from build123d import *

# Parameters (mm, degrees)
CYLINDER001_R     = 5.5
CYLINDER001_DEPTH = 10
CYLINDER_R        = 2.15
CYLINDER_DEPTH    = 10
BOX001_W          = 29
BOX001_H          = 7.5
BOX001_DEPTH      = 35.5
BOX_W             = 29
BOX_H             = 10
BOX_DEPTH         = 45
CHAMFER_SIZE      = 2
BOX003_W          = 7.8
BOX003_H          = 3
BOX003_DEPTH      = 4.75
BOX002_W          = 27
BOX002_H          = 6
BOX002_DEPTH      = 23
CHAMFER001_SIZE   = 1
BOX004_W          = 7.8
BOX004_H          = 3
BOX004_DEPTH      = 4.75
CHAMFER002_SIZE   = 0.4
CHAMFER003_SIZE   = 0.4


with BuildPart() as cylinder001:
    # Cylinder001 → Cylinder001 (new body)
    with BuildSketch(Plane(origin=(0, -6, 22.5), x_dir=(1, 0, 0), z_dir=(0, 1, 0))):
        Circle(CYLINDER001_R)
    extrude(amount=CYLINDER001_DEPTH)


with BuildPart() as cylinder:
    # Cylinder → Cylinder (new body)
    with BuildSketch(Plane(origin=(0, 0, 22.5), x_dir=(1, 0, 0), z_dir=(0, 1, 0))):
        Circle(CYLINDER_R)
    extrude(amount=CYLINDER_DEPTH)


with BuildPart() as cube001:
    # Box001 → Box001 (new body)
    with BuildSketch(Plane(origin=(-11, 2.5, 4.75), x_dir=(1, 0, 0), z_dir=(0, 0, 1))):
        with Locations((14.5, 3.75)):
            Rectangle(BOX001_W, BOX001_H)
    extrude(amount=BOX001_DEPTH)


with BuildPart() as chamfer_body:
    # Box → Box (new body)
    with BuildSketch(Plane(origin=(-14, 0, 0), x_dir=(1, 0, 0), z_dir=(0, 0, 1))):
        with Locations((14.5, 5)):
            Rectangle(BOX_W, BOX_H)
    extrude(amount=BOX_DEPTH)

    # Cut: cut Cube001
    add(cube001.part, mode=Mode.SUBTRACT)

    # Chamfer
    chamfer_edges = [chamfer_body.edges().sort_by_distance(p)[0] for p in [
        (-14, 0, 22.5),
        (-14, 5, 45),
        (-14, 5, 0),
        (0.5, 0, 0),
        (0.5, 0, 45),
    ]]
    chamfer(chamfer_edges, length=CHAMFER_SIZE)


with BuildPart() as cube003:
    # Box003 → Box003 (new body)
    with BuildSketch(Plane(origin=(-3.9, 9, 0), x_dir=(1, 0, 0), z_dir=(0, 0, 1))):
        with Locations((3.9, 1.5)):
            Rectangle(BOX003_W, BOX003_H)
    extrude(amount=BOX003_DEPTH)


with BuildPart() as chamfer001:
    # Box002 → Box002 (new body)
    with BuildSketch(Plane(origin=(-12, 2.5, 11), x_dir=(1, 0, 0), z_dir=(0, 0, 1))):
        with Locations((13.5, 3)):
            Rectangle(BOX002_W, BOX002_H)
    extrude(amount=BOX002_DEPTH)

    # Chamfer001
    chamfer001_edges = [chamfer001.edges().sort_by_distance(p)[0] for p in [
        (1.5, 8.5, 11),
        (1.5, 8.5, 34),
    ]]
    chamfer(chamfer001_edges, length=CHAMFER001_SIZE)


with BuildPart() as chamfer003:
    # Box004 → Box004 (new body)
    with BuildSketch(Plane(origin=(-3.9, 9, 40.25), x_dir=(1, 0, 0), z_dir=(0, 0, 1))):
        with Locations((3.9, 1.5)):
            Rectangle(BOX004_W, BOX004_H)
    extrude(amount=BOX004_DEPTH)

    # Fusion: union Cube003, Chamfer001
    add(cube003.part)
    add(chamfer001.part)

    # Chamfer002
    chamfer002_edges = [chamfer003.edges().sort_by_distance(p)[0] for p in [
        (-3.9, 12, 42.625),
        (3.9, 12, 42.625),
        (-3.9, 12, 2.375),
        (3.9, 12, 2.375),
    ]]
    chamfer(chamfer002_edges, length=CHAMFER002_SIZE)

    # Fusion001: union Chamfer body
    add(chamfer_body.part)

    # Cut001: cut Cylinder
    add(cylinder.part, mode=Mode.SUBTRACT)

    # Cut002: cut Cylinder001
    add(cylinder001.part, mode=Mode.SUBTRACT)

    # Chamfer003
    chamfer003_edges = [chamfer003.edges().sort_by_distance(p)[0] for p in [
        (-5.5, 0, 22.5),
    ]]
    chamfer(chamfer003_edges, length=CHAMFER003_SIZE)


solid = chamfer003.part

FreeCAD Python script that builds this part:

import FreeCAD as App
import Part
import Sketcher

V = App.Vector
Q = App.Units.Quantity


def edges_at(feature, points):
    """Names of the edges that pass closest to the given points."""
    edges = feature.Shape.Edges
    near = lambda p: min(range(len(edges)), key=lambda i: edges[i].distToShape(Part.Vertex(*p))[0])
    return sorted({f"Edge{near(p) + 1}" for p in points})

doc = App.newDocument("Part")
params = doc.addObject("Spreadsheet::Sheet", "Params")
for row, (alias, value) in enumerate([
    ("sketch1_diameter", "11 mm"),
    ("pad1_length", "10 mm"),
    ("sketch2_diameter", "4.3 mm"),
    ("pad2_length", "10 mm"),
    ("sketch3_width", "29 mm"),
    ("sketch3_height", "7.5 mm"),
    ("pad3_length", "35.5 mm"),
    ("sketch4_width", "29 mm"),
    ("sketch4_height", "10 mm"),
    ("pad4_length", "45 mm"),
    ("chamfer_size", "2 mm"),
    ("sketch5_height", "3 mm"),
    ("sketch5_width", "7.8 mm"),
    ("pad5_length", "4.75 mm"),
    ("sketch6_width", "27 mm"),
    ("sketch6_height", "6 mm"),
    ("pad6_length", "23 mm"),
    ("chamfer2_size", "1 mm"),
    ("sketch7_height", "3 mm"),
    ("sketch7_width", "7.8 mm"),
    ("pad7_length", "4.75 mm"),
    ("chamfer3_size", "0.4 mm"),
    ("chamfer4_size", "0.4 mm"),
], start=1):
    params.set(f"A{row}", alias)
    params.set(f"B{row}", "=" + value)
    params.setAlias(f"B{row}", alias)

body = doc.addObject("PartDesign::Body", "Body")

# Sketch on XZ plane
sketch1 = body.newObject("Sketcher::SketchObject", "Sketch")
sketch1.AttachmentSupport = (doc.getObject("XZ_Plane"), [""])
sketch1.MapMode = "FlatFace"
sketch1.AttachmentOffset = App.Placement(V(0, 0, 6), App.Rotation())
sketch1.addGeometry(Part.Circle(V(0, 22.5, 0), V(0, 0, 1), 5.5), False)
sketch1.addConstraint(Sketcher.Constraint("PointOnObject", 0, 3, -2))
sketch1.addConstraint(Sketcher.Constraint("Diameter", 0, Q("11 mm")))
sketch1.addConstraint(Sketcher.Constraint("DistanceY", -1, 1, 0, 3, Q("22.5 mm")))
sketch1.setExpression("Constraints[1]", "Params.sketch1_diameter")
pad1 = body.newObject("PartDesign::Pad", "Pad")
pad1.Profile = sketch1
pad1.setExpression("Length", "Params.pad1_length")
pad1.Reversed = True
body2 = doc.addObject("PartDesign::Body", "Body001")

# Sketch on XZ plane
sketch2 = body2.newObject("Sketcher::SketchObject", "Sketch001")
sketch2.AttachmentSupport = (doc.getObject("XZ_Plane001"), [""])
sketch2.MapMode = "FlatFace"
sketch2.addGeometry(Part.Circle(V(0, 22.5, 0), V(0, 0, 1), 2.15), False)
sketch2.addConstraint(Sketcher.Constraint("PointOnObject", 0, 3, -2))
sketch2.addConstraint(Sketcher.Constraint("Diameter", 0, Q("4.3 mm")))
sketch2.addConstraint(Sketcher.Constraint("DistanceY", -1, 1, 0, 3, Q("22.5 mm")))
sketch2.setExpression("Constraints[1]", "Params.sketch2_diameter")
pad2 = body2.newObject("PartDesign::Pad", "Pad001")
pad2.Profile = sketch2
pad2.setExpression("Length", "Params.pad2_length")
pad2.Reversed = True
body3 = doc.addObject("PartDesign::Body", "Body002")

# Sketch on XY plane
sketch3 = body3.newObject("Sketcher::SketchObject", "Sketch002")
sketch3.AttachmentSupport = (doc.getObject("XY_Plane002"), [""])
sketch3.MapMode = "FlatFace"
sketch3.AttachmentOffset = App.Placement(V(0, 0, 4.75), App.Rotation())
sketch3.addGeometry(Part.LineSegment(V(-11, 10, 0), V(-11, 2.5, 0)), False)
sketch3.addGeometry(Part.LineSegment(V(-11, 2.5, 0), V(18, 2.5, 0)), False)
sketch3.addGeometry(Part.LineSegment(V(18, 2.5, 0), V(18, 10, 0)), False)
sketch3.addGeometry(Part.LineSegment(V(18, 10, 0), V(-11, 10, 0)), False)
sketch3.addConstraint(Sketcher.Constraint("Coincident", 0, 2, 1, 1))
sketch3.addConstraint(Sketcher.Constraint("Coincident", 1, 2, 2, 1))
sketch3.addConstraint(Sketcher.Constraint("Coincident", 2, 2, 3, 1))
sketch3.addConstraint(Sketcher.Constraint("Coincident", 3, 2, 0, 1))
sketch3.addConstraint(Sketcher.Constraint("Vertical", 0))
sketch3.addConstraint(Sketcher.Constraint("Horizontal", 1))
sketch3.addConstraint(Sketcher.Constraint("Vertical", 2))
sketch3.addConstraint(Sketcher.Constraint("Horizontal", 3))
sketch3.addConstraint(Sketcher.Constraint("DistanceX", 1, 1, 1, 2, Q("29 mm")))
sketch3.addConstraint(Sketcher.Constraint("DistanceY", 0, 2, 0, 1, Q("7.5 mm")))
sketch3.addConstraint(Sketcher.Constraint("DistanceX", 0, 2, -1, 1, Q("11 mm")))
sketch3.addConstraint(Sketcher.Constraint("DistanceY", -1, 1, 2, 2, Q("10 mm")))
sketch3.setExpression("Constraints[8]", "Params.sketch3_width")
sketch3.setExpression("Constraints[9]", "Params.sketch3_height")
pad3 = body3.newObject("PartDesign::Pad", "Pad002")
pad3.Profile = sketch3
pad3.setExpression("Length", "Params.pad3_length")
body4 = doc.addObject("PartDesign::Body", "Body003")

# Sketch on XY plane
sketch4 = body4.newObject("Sketcher::SketchObject", "Sketch003")
sketch4.AttachmentSupport = (doc.getObject("XY_Plane003"), [""])
sketch4.MapMode = "FlatFace"
sketch4.addGeometry(Part.LineSegment(V(-14, 10, 0), V(-14, 0, 0)), False)
sketch4.addGeometry(Part.LineSegment(V(-14, 0, 0), V(15, 0, 0)), False)
sketch4.addGeometry(Part.LineSegment(V(15, 0, 0), V(15, 10, 0)), False)
sketch4.addGeometry(Part.LineSegment(V(15, 10, 0), V(-14, 10, 0)), False)
sketch4.addConstraint(Sketcher.Constraint("Coincident", 0, 2, 1, 1))
sketch4.addConstraint(Sketcher.Constraint("Coincident", 1, 2, 2, 1))
sketch4.addConstraint(Sketcher.Constraint("Coincident", 2, 2, 3, 1))
sketch4.addConstraint(Sketcher.Constraint("Coincident", 3, 2, 0, 1))
sketch4.addConstraint(Sketcher.Constraint("Vertical", 0))
sketch4.addConstraint(Sketcher.Constraint("Horizontal", 1))
sketch4.addConstraint(Sketcher.Constraint("Vertical", 2))
sketch4.addConstraint(Sketcher.Constraint("Horizontal", 3))
sketch4.addConstraint(Sketcher.Constraint("PointOnObject", 0, 2, -1))
sketch4.addConstraint(Sketcher.Constraint("DistanceX", 1, 1, 1, 2, Q("29 mm")))
sketch4.addConstraint(Sketcher.Constraint("DistanceY", 0, 2, 0, 1, Q("10 mm")))
sketch4.addConstraint(Sketcher.Constraint("DistanceX", 0, 2, -1, 1, Q("14 mm")))
sketch4.setExpression("Constraints[9]", "Params.sketch4_width")
sketch4.setExpression("Constraints[10]", "Params.sketch4_height")
pad4 = body4.newObject("PartDesign::Pad", "Pad003")
pad4.Profile = sketch4
pad4.setExpression("Length", "Params.pad4_length")
doc.recompute()

boolean = body4.newObject("PartDesign::Boolean", "Boolean")
boolean.Type = "Cut"
boolean.addObjects([body3])
doc.recompute()

chamfer = body4.newObject("PartDesign::Chamfer", "Chamfer")
chamfer.Base = (boolean, edges_at(boolean, [
    (-14, 0, 22.5),
    (-14, 5, 45),
    (-14, 5, 0),
    (0.5, 0, 0),
    (0.5, 0, 45),
]))
chamfer.setExpression("Size", "Params.chamfer_size")
body5 = doc.addObject("PartDesign::Body", "Body004")

# Sketch on XY plane
sketch5 = body5.newObject("Sketcher::SketchObject", "Sketch004")
sketch5.AttachmentSupport = (doc.getObject("XY_Plane004"), [""])
sketch5.MapMode = "FlatFace"
sketch5.addGeometry(Part.LineSegment(V(-3.9, 12, 0), V(-3.9, 9, 0)), False)
sketch5.addGeometry(Part.LineSegment(V(-3.9, 9, 0), V(3.9, 9, 0)), False)
sketch5.addGeometry(Part.LineSegment(V(3.9, 9, 0), V(3.9, 12, 0)), False)
sketch5.addGeometry(Part.LineSegment(V(3.9, 12, 0), V(-3.9, 12, 0)), False)
sketch5.addConstraint(Sketcher.Constraint("Coincident", 0, 2, 1, 1))
sketch5.addConstraint(Sketcher.Constraint("Coincident", 1, 2, 2, 1))
sketch5.addConstraint(Sketcher.Constraint("Coincident", 2, 2, 3, 1))
sketch5.addConstraint(Sketcher.Constraint("Coincident", 3, 2, 0, 1))
sketch5.addConstraint(Sketcher.Constraint("Vertical", 0))
sketch5.addConstraint(Sketcher.Constraint("Horizontal", 1))
sketch5.addConstraint(Sketcher.Constraint("Vertical", 2))
sketch5.addConstraint(Sketcher.Constraint("Horizontal", 3))
sketch5.addConstraint(Sketcher.Constraint("DistanceY", 0, 2, 0, 1, Q("3 mm")))
sketch5.addConstraint(Sketcher.Constraint("DistanceX", 1, 1, 1, 2, Q("7.8 mm")))
sketch5.addConstraint(Sketcher.Constraint("DistanceY", -1, 1, 0, 2, Q("9 mm")))
sketch5.addConstraint(Sketcher.Constraint("DistanceX", 0, 2, -1, 1, Q("3.9 mm")))
sketch5.setExpression("Constraints[8]", "Params.sketch5_height")
sketch5.setExpression("Constraints[9]", "Params.sketch5_width")
pad5 = body5.newObject("PartDesign::Pad", "Pad004")
pad5.Profile = sketch5
pad5.setExpression("Length", "Params.pad5_length")
body6 = doc.addObject("PartDesign::Body", "Body005")

# Sketch on XY plane
sketch6 = body6.newObject("Sketcher::SketchObject", "Sketch005")
sketch6.AttachmentSupport = (doc.getObject("XY_Plane005"), [""])
sketch6.MapMode = "FlatFace"
sketch6.AttachmentOffset = App.Placement(V(0, 0, 11), App.Rotation())
sketch6.addGeometry(Part.LineSegment(V(-12, 8.5, 0), V(-12, 2.5, 0)), False)
sketch6.addGeometry(Part.LineSegment(V(-12, 2.5, 0), V(15, 2.5, 0)), False)
sketch6.addGeometry(Part.LineSegment(V(15, 2.5, 0), V(15, 8.5, 0)), False)
sketch6.addGeometry(Part.LineSegment(V(15, 8.5, 0), V(-12, 8.5, 0)), False)
sketch6.addConstraint(Sketcher.Constraint("Coincident", 0, 2, 1, 1))
sketch6.addConstraint(Sketcher.Constraint("Coincident", 1, 2, 2, 1))
sketch6.addConstraint(Sketcher.Constraint("Coincident", 2, 2, 3, 1))
sketch6.addConstraint(Sketcher.Constraint("Coincident", 3, 2, 0, 1))
sketch6.addConstraint(Sketcher.Constraint("Vertical", 0))
sketch6.addConstraint(Sketcher.Constraint("Horizontal", 1))
sketch6.addConstraint(Sketcher.Constraint("Vertical", 2))
sketch6.addConstraint(Sketcher.Constraint("Horizontal", 3))
sketch6.addConstraint(Sketcher.Constraint("DistanceX", 1, 1, 1, 2, Q("27 mm")))
sketch6.addConstraint(Sketcher.Constraint("DistanceY", 0, 2, 0, 1, Q("6 mm")))
sketch6.addConstraint(Sketcher.Constraint("DistanceX", 0, 2, -1, 1, Q("12 mm")))
sketch6.addConstraint(Sketcher.Constraint("DistanceY", -1, 1, 0, 2, Q("2.5 mm")))
sketch6.setExpression("Constraints[8]", "Params.sketch6_width")
sketch6.setExpression("Constraints[9]", "Params.sketch6_height")
pad6 = body6.newObject("PartDesign::Pad", "Pad005")
pad6.Profile = sketch6
pad6.setExpression("Length", "Params.pad6_length")
doc.recompute()

chamfer2 = body6.newObject("PartDesign::Chamfer", "Chamfer001")
chamfer2.Base = (pad6, edges_at(pad6, [(1.5, 8.5, 11), (1.5, 8.5, 34)]))
chamfer2.setExpression("Size", "Params.chamfer2_size")
body7 = doc.addObject("PartDesign::Body", "Body006")
body7.AllowCompound = True

# Sketch on XY plane
sketch7 = body7.newObject("Sketcher::SketchObject", "Sketch006")
sketch7.AttachmentSupport = (doc.getObject("XY_Plane006"), [""])
sketch7.MapMode = "FlatFace"
sketch7.AttachmentOffset = App.Placement(V(0, 0, 40.25), App.Rotation())
sketch7.addGeometry(Part.LineSegment(V(-3.9, 12, 0), V(-3.9, 9, 0)), False)
sketch7.addGeometry(Part.LineSegment(V(-3.9, 9, 0), V(3.9, 9, 0)), False)
sketch7.addGeometry(Part.LineSegment(V(3.9, 9, 0), V(3.9, 12, 0)), False)
sketch7.addGeometry(Part.LineSegment(V(3.9, 12, 0), V(-3.9, 12, 0)), False)
sketch7.addConstraint(Sketcher.Constraint("Coincident", 0, 2, 1, 1))
sketch7.addConstraint(Sketcher.Constraint("Coincident", 1, 2, 2, 1))
sketch7.addConstraint(Sketcher.Constraint("Coincident", 2, 2, 3, 1))
sketch7.addConstraint(Sketcher.Constraint("Coincident", 3, 2, 0, 1))
sketch7.addConstraint(Sketcher.Constraint("Vertical", 0))
sketch7.addConstraint(Sketcher.Constraint("Horizontal", 1))
sketch7.addConstraint(Sketcher.Constraint("Vertical", 2))
sketch7.addConstraint(Sketcher.Constraint("Horizontal", 3))
sketch7.addConstraint(Sketcher.Constraint("DistanceY", 0, 2, 0, 1, Q("3 mm")))
sketch7.addConstraint(Sketcher.Constraint("DistanceX", 1, 1, 1, 2, Q("7.8 mm")))
sketch7.addConstraint(Sketcher.Constraint("DistanceY", -1, 1, 0, 2, Q("9 mm")))
sketch7.addConstraint(Sketcher.Constraint("DistanceX", 0, 2, -1, 1, Q("3.9 mm")))
sketch7.setExpression("Constraints[8]", "Params.sketch7_height")
sketch7.setExpression("Constraints[9]", "Params.sketch7_width")
pad7 = body7.newObject("PartDesign::Pad", "Pad006")
pad7.Profile = sketch7
pad7.setExpression("Length", "Params.pad7_length")
doc.recompute()

boolean2 = body7.newObject("PartDesign::Boolean", "Boolean001")
boolean2.Type = "Fuse"
boolean2.addObjects([body5])
doc.recompute()

boolean3 = body7.newObject("PartDesign::Boolean", "Boolean002")
boolean3.Type = "Fuse"
boolean3.addObjects([body6])
doc.recompute()

chamfer3 = body7.newObject("PartDesign::Chamfer", "Chamfer002")
chamfer3.Base = (boolean3, edges_at(boolean3, [
    (-3.9, 12, 42.625),
    (3.9, 12, 42.625),
    (-3.9, 12, 2.375),
    (3.9, 12, 2.375),
]))
chamfer3.setExpression("Size", "Params.chamfer3_size")
doc.recompute()

boolean4 = body7.newObject("PartDesign::Boolean", "Boolean003")
boolean4.Type = "Fuse"
boolean4.addObjects([body4])
doc.recompute()

boolean5 = body7.newObject("PartDesign::Boolean", "Boolean004")
boolean5.Type = "Cut"
boolean5.addObjects([body2])
doc.recompute()

boolean6 = body7.newObject("PartDesign::Boolean", "Boolean005")
boolean6.Type = "Cut"
boolean6.addObjects([body])
doc.recompute()

chamfer4 = body7.newObject("PartDesign::Chamfer", "Chamfer003")
chamfer4.Base = (boolean6, edges_at(boolean6, [(-5.5, 0, 22.5)]))
chamfer4.setExpression("Size", "Params.chamfer4_size")

doc.recompute()
